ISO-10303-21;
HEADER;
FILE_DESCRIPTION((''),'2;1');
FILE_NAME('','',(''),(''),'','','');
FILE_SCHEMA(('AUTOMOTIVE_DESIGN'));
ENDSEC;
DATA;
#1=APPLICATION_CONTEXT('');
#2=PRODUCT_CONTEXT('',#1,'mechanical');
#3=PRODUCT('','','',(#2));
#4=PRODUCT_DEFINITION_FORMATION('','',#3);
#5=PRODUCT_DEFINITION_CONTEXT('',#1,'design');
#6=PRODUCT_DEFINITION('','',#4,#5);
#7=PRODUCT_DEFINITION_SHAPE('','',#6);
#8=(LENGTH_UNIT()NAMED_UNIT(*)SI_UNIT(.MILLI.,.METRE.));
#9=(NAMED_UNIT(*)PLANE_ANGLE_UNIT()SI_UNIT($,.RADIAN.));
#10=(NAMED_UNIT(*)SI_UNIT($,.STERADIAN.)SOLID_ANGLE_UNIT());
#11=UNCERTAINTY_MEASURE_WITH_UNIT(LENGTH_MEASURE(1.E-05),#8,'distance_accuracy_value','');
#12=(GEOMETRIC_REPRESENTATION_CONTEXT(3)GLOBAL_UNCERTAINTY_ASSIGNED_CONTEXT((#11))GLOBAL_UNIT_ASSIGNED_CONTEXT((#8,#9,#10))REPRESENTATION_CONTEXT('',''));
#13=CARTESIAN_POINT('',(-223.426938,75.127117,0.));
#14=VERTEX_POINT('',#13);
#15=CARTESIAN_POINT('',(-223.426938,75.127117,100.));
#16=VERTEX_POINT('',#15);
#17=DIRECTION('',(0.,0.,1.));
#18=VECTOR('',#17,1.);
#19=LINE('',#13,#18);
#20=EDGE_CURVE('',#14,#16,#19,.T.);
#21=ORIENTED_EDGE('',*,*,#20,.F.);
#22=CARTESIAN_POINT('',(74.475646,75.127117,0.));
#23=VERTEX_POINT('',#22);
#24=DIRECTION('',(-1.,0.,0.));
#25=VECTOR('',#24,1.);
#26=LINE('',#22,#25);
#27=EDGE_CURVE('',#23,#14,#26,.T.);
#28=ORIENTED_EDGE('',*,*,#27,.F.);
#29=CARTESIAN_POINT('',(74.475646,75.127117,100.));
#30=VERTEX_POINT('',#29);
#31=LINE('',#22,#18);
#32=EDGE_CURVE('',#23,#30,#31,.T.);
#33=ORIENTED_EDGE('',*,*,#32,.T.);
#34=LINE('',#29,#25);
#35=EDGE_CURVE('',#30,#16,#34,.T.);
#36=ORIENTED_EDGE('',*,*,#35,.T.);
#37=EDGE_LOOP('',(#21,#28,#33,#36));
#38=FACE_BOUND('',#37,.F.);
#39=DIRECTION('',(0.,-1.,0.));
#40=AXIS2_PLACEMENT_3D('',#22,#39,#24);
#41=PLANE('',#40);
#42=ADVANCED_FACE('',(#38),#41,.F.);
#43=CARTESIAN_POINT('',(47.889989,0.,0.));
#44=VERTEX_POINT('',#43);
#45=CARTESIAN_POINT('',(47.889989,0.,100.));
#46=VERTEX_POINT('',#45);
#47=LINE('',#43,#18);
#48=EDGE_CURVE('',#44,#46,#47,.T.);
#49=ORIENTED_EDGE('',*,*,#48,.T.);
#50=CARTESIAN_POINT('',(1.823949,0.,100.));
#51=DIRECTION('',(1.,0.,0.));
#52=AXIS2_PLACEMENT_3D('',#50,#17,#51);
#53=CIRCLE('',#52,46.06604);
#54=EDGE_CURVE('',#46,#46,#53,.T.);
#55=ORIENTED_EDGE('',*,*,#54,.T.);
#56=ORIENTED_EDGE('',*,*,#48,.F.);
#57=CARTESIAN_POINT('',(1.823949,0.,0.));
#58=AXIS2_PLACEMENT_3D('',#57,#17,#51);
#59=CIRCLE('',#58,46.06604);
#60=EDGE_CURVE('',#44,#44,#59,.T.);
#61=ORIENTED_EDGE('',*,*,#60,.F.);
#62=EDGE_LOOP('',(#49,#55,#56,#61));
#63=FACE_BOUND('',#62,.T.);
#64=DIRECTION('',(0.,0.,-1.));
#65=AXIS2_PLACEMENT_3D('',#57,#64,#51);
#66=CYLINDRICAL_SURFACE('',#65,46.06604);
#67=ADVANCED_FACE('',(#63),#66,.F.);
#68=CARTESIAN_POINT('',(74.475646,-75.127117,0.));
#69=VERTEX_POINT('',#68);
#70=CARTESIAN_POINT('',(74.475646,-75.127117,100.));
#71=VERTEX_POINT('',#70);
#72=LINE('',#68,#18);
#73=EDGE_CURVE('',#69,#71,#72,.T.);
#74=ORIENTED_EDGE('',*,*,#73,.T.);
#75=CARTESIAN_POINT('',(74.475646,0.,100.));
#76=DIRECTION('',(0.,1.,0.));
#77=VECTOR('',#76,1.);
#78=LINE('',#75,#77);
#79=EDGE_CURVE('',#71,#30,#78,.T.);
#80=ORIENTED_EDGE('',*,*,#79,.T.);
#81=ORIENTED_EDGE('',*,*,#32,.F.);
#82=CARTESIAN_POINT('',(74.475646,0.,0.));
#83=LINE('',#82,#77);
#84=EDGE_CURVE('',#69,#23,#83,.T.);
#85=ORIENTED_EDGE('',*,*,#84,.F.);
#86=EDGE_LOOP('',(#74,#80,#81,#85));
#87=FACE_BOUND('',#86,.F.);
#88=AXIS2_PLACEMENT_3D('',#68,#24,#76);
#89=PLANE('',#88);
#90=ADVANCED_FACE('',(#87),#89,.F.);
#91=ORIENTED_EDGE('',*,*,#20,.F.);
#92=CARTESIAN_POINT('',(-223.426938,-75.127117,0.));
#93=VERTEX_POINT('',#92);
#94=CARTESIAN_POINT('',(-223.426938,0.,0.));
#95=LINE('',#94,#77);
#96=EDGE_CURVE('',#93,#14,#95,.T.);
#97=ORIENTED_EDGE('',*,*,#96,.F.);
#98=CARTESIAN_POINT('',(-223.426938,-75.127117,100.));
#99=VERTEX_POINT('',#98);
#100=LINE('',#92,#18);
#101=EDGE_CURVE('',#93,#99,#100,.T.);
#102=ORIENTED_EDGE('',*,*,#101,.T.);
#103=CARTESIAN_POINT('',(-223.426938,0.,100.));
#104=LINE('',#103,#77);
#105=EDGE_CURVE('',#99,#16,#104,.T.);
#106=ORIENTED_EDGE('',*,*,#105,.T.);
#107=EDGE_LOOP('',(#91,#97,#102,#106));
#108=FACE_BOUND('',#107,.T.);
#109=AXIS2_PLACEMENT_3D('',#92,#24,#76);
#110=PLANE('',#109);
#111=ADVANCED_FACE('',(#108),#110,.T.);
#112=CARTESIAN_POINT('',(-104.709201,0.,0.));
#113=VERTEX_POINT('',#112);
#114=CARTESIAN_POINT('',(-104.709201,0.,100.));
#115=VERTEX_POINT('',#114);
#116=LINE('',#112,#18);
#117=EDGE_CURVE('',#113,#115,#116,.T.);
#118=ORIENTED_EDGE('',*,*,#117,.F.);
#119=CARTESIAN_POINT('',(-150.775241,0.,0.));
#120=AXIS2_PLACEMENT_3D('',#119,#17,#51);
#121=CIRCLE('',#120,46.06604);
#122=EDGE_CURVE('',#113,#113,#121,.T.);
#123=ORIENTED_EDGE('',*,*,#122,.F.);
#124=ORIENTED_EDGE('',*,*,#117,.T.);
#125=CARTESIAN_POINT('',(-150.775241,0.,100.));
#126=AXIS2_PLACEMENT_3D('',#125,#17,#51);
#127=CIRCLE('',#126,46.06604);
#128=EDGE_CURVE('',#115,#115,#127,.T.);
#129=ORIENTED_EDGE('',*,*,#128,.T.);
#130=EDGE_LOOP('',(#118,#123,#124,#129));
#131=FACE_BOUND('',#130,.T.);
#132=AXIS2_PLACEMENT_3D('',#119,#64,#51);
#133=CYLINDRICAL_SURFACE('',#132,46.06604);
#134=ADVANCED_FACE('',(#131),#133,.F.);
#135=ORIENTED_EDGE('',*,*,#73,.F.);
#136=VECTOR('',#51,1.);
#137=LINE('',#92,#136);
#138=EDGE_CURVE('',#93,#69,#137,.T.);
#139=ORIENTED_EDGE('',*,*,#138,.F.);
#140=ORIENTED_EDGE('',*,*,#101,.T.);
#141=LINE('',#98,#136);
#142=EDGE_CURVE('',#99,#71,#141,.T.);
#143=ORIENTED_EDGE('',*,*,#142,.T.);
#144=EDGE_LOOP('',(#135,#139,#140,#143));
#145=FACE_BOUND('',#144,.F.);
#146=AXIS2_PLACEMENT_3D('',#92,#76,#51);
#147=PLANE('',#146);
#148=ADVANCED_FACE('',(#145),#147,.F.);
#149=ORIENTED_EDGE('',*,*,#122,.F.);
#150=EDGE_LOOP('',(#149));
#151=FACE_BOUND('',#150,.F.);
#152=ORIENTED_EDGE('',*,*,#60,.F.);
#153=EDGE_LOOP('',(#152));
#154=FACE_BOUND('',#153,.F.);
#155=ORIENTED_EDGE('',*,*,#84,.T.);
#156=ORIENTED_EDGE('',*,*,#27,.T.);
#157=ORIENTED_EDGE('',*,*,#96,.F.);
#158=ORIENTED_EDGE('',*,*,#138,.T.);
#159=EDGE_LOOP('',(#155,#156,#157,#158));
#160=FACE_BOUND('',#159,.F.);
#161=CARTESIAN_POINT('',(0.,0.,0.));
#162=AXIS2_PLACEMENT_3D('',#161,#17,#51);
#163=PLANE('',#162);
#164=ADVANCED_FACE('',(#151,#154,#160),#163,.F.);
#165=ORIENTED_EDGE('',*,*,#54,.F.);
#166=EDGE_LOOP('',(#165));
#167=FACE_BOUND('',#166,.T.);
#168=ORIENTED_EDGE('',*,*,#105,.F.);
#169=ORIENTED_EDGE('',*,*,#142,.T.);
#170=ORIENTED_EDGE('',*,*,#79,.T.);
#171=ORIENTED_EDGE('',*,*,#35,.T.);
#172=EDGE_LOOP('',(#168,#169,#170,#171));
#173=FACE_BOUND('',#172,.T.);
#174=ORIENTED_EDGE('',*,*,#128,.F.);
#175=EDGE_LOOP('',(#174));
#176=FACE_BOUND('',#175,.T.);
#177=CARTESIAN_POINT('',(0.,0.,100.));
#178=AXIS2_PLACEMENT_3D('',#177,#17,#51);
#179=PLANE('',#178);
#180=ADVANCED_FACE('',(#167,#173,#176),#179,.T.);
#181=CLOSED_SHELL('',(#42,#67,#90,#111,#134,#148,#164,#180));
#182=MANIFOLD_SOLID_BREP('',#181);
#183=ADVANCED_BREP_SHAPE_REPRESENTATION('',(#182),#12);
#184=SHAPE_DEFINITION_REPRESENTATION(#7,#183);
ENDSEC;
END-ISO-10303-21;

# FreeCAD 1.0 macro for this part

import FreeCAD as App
import Part
import Sketcher
Q = App.Units.Quantity


def add_polygon(sketch, points):
    """Adds a closed chain of lines whose ends are joined by coincident constraints."""
    first, n = sketch.GeometryCount, len(points)
    for a, b in zip(points, points[1:] + points[:1]):
        sketch.addGeometry(Part.LineSegment(App.Vector(*a, 0), App.Vector(*b, 0)), False)
    for i in range(n):
        sketch.addConstraint(Sketcher.Constraint("Coincident", first + i, 2, first + (i + 1) % n, 1))

doc = App.newDocument("Part")
params = doc.addObject("Spreadsheet::Sheet", "Params")
for row, (alias, value) in enumerate([
    ("pad1_length", "100 mm"),
], start=1):
    params.set(f"A{row}", alias)
    params.set(f"B{row}", "=" + value)
    params.setAlias(f"B{row}", alias)

body = doc.addObject("PartDesign::Body", "Body")

sketch1 = body.newObject("Sketcher::SketchObject", "Sketch")
sketch1.AttachmentSupport = (doc.getObject("XY_Plane"), [""])
sketch1.MapMode = "FlatFace"
add_polygon(sketch1, [(74.475646, -75.127117), (74.475646, 75.127117), (-223.426938, 75.127117), (-223.426938, -75.127117)])
sketch1.addGeometry(Part.Circle(App.Vector(-150.775241, 0, 0), App.Vector(0, 0, 1), 46.06604), False)
sketch1.addGeometry(Part.Circle(App.Vector(1.823949, 0, 0), App.Vector(0, 0, 1), 46.06604), False)
sketch1.addConstraint([
    Sketcher.Constraint("Vertical", 0),
    Sketcher.Constraint("Horizontal", 1),
    Sketcher.Constraint("Vertical", 2),
    Sketcher.Constraint("Horizontal", 3),
    Sketcher.Constraint("Equal", 4, 5),
    Sketcher.Constraint("PointOnObject", 4, 3, -1),
    Sketcher.Constraint("PointOnObject", 5, 3, -1),
    Sketcher.Constraint("Diameter", 4, Q("92.13208 mm")),
    Sketcher.Constraint("DistanceX", 1, 2, 1, 1, Q("297.902584 mm")),
    Sketcher.Constraint("DistanceY", 0, 1, 0, 2, Q("150.254234 mm")),
    Sketcher.Constraint("DistanceX", 4, 3, -1, 1, Q("150.775241 mm")),
    Sketcher.Constraint("DistanceX", -1, 1, 5, 3, Q("1.823949 mm")),
    Sketcher.Constraint("DistanceX", 1, 2, -1, 1, Q("223.426938 mm")),
    Sketcher.Constraint("DistanceY", -1, 1, 0, 2, Q("75.127117 mm")),
])
pad1 = body.newObject("PartDesign::Pad", "Pad")
pad1.Profile = sketch1
pad1.setExpression("Length", "Params.pad1_length")

doc.recompute()
